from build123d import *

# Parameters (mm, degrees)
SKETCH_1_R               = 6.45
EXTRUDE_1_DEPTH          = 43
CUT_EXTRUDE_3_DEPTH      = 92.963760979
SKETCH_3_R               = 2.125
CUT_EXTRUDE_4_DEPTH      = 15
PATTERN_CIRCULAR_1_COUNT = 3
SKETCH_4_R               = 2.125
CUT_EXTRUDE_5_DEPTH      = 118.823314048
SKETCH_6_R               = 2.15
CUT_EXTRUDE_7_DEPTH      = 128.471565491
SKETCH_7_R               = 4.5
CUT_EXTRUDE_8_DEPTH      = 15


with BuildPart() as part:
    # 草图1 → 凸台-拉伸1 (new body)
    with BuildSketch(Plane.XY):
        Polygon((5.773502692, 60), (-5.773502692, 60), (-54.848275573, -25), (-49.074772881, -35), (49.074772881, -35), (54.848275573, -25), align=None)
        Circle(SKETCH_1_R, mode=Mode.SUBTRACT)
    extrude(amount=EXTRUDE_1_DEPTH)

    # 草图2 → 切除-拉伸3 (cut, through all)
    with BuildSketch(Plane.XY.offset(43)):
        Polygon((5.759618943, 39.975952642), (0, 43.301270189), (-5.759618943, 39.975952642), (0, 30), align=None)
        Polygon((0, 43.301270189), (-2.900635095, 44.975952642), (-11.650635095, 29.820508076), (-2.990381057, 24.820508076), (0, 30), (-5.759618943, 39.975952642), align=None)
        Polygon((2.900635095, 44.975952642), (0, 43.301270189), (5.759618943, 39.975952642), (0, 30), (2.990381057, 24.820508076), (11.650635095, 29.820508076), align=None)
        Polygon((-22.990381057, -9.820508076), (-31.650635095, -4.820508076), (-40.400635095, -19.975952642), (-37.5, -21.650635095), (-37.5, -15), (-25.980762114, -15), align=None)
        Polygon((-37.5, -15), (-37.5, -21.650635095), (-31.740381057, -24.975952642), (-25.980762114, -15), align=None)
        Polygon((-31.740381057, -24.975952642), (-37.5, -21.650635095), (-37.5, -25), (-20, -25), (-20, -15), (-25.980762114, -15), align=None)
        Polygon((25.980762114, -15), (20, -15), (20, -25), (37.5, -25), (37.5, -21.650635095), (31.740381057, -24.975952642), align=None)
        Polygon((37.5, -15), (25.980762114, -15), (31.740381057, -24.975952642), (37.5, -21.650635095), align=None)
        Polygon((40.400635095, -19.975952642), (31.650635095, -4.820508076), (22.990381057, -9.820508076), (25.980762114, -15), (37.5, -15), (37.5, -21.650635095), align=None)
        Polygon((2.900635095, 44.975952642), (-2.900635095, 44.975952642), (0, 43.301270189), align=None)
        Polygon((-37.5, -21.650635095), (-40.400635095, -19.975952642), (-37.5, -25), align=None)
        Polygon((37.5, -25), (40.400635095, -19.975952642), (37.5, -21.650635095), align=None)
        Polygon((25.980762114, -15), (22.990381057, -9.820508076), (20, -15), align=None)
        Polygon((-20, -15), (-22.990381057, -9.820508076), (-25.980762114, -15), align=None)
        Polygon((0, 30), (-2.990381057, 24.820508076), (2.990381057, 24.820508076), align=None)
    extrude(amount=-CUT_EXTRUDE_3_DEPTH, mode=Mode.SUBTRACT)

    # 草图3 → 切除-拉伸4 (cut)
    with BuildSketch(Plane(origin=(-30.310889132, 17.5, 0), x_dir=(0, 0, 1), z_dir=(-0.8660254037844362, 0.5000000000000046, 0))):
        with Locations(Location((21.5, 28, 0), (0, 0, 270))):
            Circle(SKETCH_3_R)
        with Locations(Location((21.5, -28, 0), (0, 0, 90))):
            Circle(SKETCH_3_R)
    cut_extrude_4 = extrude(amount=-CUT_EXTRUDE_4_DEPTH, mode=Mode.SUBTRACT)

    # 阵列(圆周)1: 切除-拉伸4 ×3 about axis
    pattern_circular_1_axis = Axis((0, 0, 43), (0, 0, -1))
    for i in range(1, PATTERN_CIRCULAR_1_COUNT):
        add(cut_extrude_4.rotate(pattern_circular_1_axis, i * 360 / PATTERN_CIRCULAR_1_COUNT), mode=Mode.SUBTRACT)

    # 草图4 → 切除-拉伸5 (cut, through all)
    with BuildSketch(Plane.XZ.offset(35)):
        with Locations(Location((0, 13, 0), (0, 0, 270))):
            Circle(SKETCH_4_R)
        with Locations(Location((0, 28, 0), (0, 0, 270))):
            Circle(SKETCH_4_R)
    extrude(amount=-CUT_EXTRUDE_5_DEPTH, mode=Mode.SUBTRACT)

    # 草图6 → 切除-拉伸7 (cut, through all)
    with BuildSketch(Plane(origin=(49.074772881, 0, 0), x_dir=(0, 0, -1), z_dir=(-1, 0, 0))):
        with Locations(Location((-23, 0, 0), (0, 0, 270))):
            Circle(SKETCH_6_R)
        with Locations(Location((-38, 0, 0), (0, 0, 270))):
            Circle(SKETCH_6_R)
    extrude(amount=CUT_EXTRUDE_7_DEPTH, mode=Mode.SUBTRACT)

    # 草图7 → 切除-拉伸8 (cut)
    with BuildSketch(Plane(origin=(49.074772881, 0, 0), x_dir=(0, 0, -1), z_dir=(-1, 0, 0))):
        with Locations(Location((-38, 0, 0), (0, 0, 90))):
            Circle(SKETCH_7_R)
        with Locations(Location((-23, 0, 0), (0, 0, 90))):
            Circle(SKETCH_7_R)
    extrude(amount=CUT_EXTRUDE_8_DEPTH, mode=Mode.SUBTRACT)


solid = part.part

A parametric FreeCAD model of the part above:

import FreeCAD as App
import Part
import Sketcher

V = App.Vector
Q = App.Units.Quantity


def add_polygon(sketch, points):
    """Adds a closed chain of lines whose ends are joined by coincident constraints."""
    first, n = sketch.GeometryCount, len(points)
    for a, b in zip(points, points[1:] + points[:1]):
        sketch.addGeometry(Part.LineSegment(App.Vector(*a, 0), App.Vector(*b, 0)), False)
    for i in range(n):
        sketch.addConstraint(Sketcher.Constraint("Coincident", first + i, 2, first + (i + 1) % n, 1))

doc = App.newDocument("Part")
body = doc.addObject("PartDesign::Body", "Body")

# Sketch on XY plane
sketch1 = body.newObject("Sketcher::SketchObject", "Sketch")
sketch1.AttachmentSupport = (doc.getObject("XY_Plane"), [""])
sketch1.MapMode = "FlatFace"
add_polygon(sketch1, [(6, 60), (-6, 60), (-55, -25), (-49, -35), (49, -35), (55, -25)])  # lines 0-5
sketch1.addGeometry(Part.Circle(V(0, 0, 0), V(0, 0, 1), 6), False)  # 6
sketch1.addConstraint(Sketcher.Constraint("Horizontal", 0))
sketch1.addConstraint(Sketcher.Constraint("Horizontal", 3))
sketch1.addConstraint(Sketcher.Constraint("Coincident", 6, 3, -1, 1))
sketch1.addConstraint(Sketcher.Constraint("Symmetric", 1, 2, 4, 2, -2))
sketch1.addConstraint(Sketcher.Constraint("Parallel", 1, 4))
sketch1.addConstraint(Sketcher.Constraint("Parallel", 2, 5))
sketch1.addConstraint(Sketcher.Constraint("Equal", 2, 4))
sketch1.addConstraint(Sketcher.Constraint("Diameter", 6, 12.9))
sketch1.addConstraint(Sketcher.Constraint("Angle", 1, Q("-120 deg")))
sketch1.addConstraint(Sketcher.Constraint("DistanceY", -1, 1, 0, 2, 60.0))
sketch1.addConstraint(Sketcher.Constraint("DistanceY", 1, 2, -1, 1, 25.0))
sketch1.addConstraint(Sketcher.Constraint("DistanceY", 2, 2, -1, 1, 35.0))
sketch1.addConstraint(Sketcher.Constraint("DistanceX", 0, 2, 0, 1, 11.547005))
pad1 = body.newObject("PartDesign::Pad", "Pad")
pad1.Profile = sketch1
pad1.Length = 43

# Sketch on XY plane
sketch2 = body.newObject("Sketcher::SketchObject", "Sketch001")
sketch2.AttachmentSupport = (doc.getObject("XY_Plane"), [""])
sketch2.MapMode = "FlatFace"
sketch2.AttachmentOffset = App.Placement(V(0, 0, 43), App.Rotation())
add_polygon(sketch2, [(-3, 45), (-12, 30), (-3, 25), (3, 25), (12, 30), (3, 45)])  # lines 0-5
add_polygon(sketch2, [(-23, -10), (-32, -5), (-40, -20), (-38, -25), (-20, -25), (-20, -15)])  # lines 6-11
add_polygon(sketch2, [(20, -15), (20, -25), (38, -25), (40, -20), (32, -5), (23, -10)])  # lines 12-17
sketch2.addConstraint(Sketcher.Constraint("Horizontal", 2))
sketch2.addConstraint(Sketcher.Constraint("Horizontal", 5))
sketch2.addConstraint(Sketcher.Constraint("Horizontal", 9))
sketch2.addConstraint(Sketcher.Constraint("Vertical", 10))
sketch2.addConstraint(Sketcher.Constraint("Vertical", 12))
sketch2.addConstraint(Sketcher.Constraint("Horizontal", 13))
sketch2.addConstraint(Sketcher.Constraint("Symmetric", 0, 2, 3, 2, -2))
sketch2.addConstraint(Sketcher.Constraint("Symmetric", 9, 2, 12, 2, -2))
sketch2.addConstraint(Sketcher.Constraint("Symmetric", 7, 2, 14, 2, -2))
sketch2.addConstraint(Sketcher.Constraint("Symmetric", 6, 2, 15, 2, -2))
sketch2.addConstraint(Sketcher.Constraint("Symmetric", 11, 2, 16, 2, -2))
sketch2.addConstraint(Sketcher.Constraint("Perpendicular", 0, 1))
sketch2.addConstraint(Sketcher.Constraint("Perpendicular", 3, 4))
sketch2.addConstraint(Sketcher.Constraint("Parallel", 1, 6))
sketch2.addConstraint(Sketcher.Constraint("Perpendicular", 6, 7))
sketch2.addConstraint(Sketcher.Constraint("Parallel", 4, 8))
sketch2.addConstraint(Sketcher.Constraint("Parallel", 8, 11))
sketch2.addConstraint(Sketcher.Constraint("Parallel", 7, 14))
sketch2.addConstraint(Sketcher.Constraint("Parallel", 11, 15))
sketch2.addConstraint(Sketcher.Constraint("Parallel", 14, 17))
sketch2.addConstraint(Sketcher.Constraint("Equal", 3, 6))
sketch2.addConstraint(Sketcher.Constraint("Equal", 4, 7))
sketch2.addConstraint(Sketcher.Constraint("DistanceY", 10, 1, 10, 2, 10.0))
sketch2.addConstraint(Sketcher.Constraint("Angle", 0, Q("-120 deg")))
sketch2.addConstraint(Sketcher.Constraint("Distance", 1, 10.0))
sketch2.addConstraint(Sketcher.Constraint("DistanceX", 9, 1, 9, 2, 17.5))
sketch2.addConstraint(Sketcher.Constraint("DistanceY", 8, 2, -1, 1, 25.0))
sketch2.addConstraint(Sketcher.Constraint("DistanceX", 9, 2, -1, 1, 20.0))
sketch2.addConstraint(Sketcher.Constraint("DistanceX", 6, 2, 0, 2, 20.0))
sketch2.addConstraint(Sketcher.Constraint("DistanceX", 5, 2, 5, 1, 5.80127))
sketch2.addConstraint(Sketcher.Constraint("DistanceY", -1, 1, 0, 2, 29.820508))
pocket1 = body.newObject("PartDesign::Pocket", "Pocket")
pocket1.Profile = sketch2
pocket1.Type = "ThroughAll"

# Sketch on an angled plane
sketch3 = body.newObject("Sketcher::SketchObject", "Sketch002")
sketch3.Placement = App.Placement(V(-30.310889, 17.5, 0), App.Rotation(V(0, 0, 1), V(0.5, 0.866025404, 0), V(-0.866025404, 0.5, 0), "ZXY"))
sketch3.addGeometry(Part.Circle(V(21.5, 28, 0), V(0, 0, 1), 2.1), False)
sketch3.addGeometry(Part.Circle(V(21.5, -28, 0), V(0, 0, 1), 2.1), False)
sketch3.addConstraint(Sketcher.Constraint("Equal", 0, 1))
sketch3.addConstraint(Sketcher.Constraint("Symmetric", 0, 3, 1, 3, -1))
sketch3.addConstraint(Sketcher.Constraint("Diameter", 0, 4.25))
sketch3.addConstraint(Sketcher.Constraint("DistanceY", -1, 1, 0, 3, 28.0))
sketch3.addConstraint(Sketcher.Constraint("DistanceX", -1, 1, 0, 3, 21.5))
pocket2 = body.newObject("PartDesign::Pocket", "Pocket001")
pocket2.Profile = sketch3
pocket2.Length = 15
doc.recompute()

polarpattern = body.newObject("PartDesign::PolarPattern", "PolarPattern")
polarpattern.Originals = [pocket2]
polarpattern.Axis = (doc.getObject("Z_Axis"), [""])
polarpattern.Angle = 360
polarpattern.Occurrences = 3
body.Tip = polarpattern

# Sketch on XZ plane
sketch4 = body.newObject("Sketcher::SketchObject", "Sketch003")
sketch4.AttachmentSupport = (doc.getObject("XZ_Plane"), [""])
sketch4.MapMode = "FlatFace"
sketch4.AttachmentOffset = App.Placement(V(0, 0, 35), App.Rotation())
sketch4.addGeometry(Part.Circle(V(0, 13, 0), V(0, 0, 1), 2.1), False)
sketch4.addGeometry(Part.Circle(V(0, 28, 0), V(0, 0, 1), 2.1), False)
sketch4.addConstraint(Sketcher.Constraint("Equal", 0, 1))
sketch4.addConstraint(Sketcher.Constraint("PointOnObject", 0, 3, -2))
sketch4.addConstraint(Sketcher.Constraint("PointOnObject", 1, 3, -2))
sketch4.addConstraint(Sketcher.Constraint("Diameter", 0, 4.25))
sketch4.addConstraint(Sketcher.Constraint("DistanceY", -1, 1, 0, 3, 13.0))
sketch4.addConstraint(Sketcher.Constraint("DistanceY", -1, 1, 1, 3, 28.0))
pocket3 = body.newObject("PartDesign::Pocket", "Pocket002")
pocket3.Profile = sketch4
pocket3.Type = "ThroughAll"

# Sketch on YZ plane
sketch5 = body.newObject("Sketcher::SketchObject", "Sketch004")
sketch5.AttachmentSupport = (doc.getObject("YZ_Plane"), [""])
sketch5.MapMode = "FlatFace"
sketch5.AttachmentOffset = App.Placement(V(0, 0, 49.074773), App.Rotation())
sketch5.addGeometry(Part.Circle(V(0, 23, 0), V(0, 0, 1), 2.1), False)
sketch5.addGeometry(Part.Circle(V(0, 38, 0), V(0, 0, 1), 2.1), False)
sketch5.addConstraint(Sketcher.Constraint("Equal", 0, 1))
sketch5.addConstraint(Sketcher.Constraint("PointOnObject", 0, 3, -2))
sketch5.addConstraint(Sketcher.Constraint("PointOnObject", 1, 3, -2))
sketch5.addConstraint(Sketcher.Constraint("Diameter", 0, 4.3))
sketch5.addConstraint(Sketcher.Constraint("DistanceY", -1, 1, 0, 3, 23.0))
sketch5.addConstraint(Sketcher.Constraint("DistanceY", -1, 1, 1, 3, 38.0))
pocket4 = body.newObject("PartDesign::Pocket", "Pocket003")
pocket4.Profile = sketch5
pocket4.Type = "ThroughAll"

# Sketch on YZ plane
sketch6 = body.newObject("Sketcher::SketchObject", "Sketch005")
sketch6.AttachmentSupport = (doc.getObject("YZ_Plane"), [""])
sketch6.MapMode = "FlatFace"
sketch6.AttachmentOffset = App.Placement(V(0, 0, 49.074773), App.Rotation())
sketch6.addGeometry(Part.Circle(V(0, 38, 0), V(0, 0, 1), 4.5), False)
sketch6.addGeometry(Part.Circle(V(0, 23, 0), V(0, 0, 1), 4.5), False)
sketch6.addConstraint(Sketcher.Constraint("Equal", 0, 1))
sketch6.addConstraint(Sketcher.Constraint("PointOnObject", 0, 3, -2))
sketch6.addConstraint(Sketcher.Constraint("PointOnObject", 1, 3, -2))
sketch6.addConstraint(Sketcher.Constraint("Diameter", 0, 9.0))
sketch6.addConstraint(Sketcher.Constraint("DistanceY", -1, 1, 0, 3, 38.0))
sketch6.addConstraint(Sketcher.Constraint("DistanceY", -1, 1, 1, 3, 23.0))
pocket5 = body.newObject("PartDesign::Pocket", "Pocket004")
pocket5.Profile = sketch6
pocket5.Length = 15

doc.recompute()
